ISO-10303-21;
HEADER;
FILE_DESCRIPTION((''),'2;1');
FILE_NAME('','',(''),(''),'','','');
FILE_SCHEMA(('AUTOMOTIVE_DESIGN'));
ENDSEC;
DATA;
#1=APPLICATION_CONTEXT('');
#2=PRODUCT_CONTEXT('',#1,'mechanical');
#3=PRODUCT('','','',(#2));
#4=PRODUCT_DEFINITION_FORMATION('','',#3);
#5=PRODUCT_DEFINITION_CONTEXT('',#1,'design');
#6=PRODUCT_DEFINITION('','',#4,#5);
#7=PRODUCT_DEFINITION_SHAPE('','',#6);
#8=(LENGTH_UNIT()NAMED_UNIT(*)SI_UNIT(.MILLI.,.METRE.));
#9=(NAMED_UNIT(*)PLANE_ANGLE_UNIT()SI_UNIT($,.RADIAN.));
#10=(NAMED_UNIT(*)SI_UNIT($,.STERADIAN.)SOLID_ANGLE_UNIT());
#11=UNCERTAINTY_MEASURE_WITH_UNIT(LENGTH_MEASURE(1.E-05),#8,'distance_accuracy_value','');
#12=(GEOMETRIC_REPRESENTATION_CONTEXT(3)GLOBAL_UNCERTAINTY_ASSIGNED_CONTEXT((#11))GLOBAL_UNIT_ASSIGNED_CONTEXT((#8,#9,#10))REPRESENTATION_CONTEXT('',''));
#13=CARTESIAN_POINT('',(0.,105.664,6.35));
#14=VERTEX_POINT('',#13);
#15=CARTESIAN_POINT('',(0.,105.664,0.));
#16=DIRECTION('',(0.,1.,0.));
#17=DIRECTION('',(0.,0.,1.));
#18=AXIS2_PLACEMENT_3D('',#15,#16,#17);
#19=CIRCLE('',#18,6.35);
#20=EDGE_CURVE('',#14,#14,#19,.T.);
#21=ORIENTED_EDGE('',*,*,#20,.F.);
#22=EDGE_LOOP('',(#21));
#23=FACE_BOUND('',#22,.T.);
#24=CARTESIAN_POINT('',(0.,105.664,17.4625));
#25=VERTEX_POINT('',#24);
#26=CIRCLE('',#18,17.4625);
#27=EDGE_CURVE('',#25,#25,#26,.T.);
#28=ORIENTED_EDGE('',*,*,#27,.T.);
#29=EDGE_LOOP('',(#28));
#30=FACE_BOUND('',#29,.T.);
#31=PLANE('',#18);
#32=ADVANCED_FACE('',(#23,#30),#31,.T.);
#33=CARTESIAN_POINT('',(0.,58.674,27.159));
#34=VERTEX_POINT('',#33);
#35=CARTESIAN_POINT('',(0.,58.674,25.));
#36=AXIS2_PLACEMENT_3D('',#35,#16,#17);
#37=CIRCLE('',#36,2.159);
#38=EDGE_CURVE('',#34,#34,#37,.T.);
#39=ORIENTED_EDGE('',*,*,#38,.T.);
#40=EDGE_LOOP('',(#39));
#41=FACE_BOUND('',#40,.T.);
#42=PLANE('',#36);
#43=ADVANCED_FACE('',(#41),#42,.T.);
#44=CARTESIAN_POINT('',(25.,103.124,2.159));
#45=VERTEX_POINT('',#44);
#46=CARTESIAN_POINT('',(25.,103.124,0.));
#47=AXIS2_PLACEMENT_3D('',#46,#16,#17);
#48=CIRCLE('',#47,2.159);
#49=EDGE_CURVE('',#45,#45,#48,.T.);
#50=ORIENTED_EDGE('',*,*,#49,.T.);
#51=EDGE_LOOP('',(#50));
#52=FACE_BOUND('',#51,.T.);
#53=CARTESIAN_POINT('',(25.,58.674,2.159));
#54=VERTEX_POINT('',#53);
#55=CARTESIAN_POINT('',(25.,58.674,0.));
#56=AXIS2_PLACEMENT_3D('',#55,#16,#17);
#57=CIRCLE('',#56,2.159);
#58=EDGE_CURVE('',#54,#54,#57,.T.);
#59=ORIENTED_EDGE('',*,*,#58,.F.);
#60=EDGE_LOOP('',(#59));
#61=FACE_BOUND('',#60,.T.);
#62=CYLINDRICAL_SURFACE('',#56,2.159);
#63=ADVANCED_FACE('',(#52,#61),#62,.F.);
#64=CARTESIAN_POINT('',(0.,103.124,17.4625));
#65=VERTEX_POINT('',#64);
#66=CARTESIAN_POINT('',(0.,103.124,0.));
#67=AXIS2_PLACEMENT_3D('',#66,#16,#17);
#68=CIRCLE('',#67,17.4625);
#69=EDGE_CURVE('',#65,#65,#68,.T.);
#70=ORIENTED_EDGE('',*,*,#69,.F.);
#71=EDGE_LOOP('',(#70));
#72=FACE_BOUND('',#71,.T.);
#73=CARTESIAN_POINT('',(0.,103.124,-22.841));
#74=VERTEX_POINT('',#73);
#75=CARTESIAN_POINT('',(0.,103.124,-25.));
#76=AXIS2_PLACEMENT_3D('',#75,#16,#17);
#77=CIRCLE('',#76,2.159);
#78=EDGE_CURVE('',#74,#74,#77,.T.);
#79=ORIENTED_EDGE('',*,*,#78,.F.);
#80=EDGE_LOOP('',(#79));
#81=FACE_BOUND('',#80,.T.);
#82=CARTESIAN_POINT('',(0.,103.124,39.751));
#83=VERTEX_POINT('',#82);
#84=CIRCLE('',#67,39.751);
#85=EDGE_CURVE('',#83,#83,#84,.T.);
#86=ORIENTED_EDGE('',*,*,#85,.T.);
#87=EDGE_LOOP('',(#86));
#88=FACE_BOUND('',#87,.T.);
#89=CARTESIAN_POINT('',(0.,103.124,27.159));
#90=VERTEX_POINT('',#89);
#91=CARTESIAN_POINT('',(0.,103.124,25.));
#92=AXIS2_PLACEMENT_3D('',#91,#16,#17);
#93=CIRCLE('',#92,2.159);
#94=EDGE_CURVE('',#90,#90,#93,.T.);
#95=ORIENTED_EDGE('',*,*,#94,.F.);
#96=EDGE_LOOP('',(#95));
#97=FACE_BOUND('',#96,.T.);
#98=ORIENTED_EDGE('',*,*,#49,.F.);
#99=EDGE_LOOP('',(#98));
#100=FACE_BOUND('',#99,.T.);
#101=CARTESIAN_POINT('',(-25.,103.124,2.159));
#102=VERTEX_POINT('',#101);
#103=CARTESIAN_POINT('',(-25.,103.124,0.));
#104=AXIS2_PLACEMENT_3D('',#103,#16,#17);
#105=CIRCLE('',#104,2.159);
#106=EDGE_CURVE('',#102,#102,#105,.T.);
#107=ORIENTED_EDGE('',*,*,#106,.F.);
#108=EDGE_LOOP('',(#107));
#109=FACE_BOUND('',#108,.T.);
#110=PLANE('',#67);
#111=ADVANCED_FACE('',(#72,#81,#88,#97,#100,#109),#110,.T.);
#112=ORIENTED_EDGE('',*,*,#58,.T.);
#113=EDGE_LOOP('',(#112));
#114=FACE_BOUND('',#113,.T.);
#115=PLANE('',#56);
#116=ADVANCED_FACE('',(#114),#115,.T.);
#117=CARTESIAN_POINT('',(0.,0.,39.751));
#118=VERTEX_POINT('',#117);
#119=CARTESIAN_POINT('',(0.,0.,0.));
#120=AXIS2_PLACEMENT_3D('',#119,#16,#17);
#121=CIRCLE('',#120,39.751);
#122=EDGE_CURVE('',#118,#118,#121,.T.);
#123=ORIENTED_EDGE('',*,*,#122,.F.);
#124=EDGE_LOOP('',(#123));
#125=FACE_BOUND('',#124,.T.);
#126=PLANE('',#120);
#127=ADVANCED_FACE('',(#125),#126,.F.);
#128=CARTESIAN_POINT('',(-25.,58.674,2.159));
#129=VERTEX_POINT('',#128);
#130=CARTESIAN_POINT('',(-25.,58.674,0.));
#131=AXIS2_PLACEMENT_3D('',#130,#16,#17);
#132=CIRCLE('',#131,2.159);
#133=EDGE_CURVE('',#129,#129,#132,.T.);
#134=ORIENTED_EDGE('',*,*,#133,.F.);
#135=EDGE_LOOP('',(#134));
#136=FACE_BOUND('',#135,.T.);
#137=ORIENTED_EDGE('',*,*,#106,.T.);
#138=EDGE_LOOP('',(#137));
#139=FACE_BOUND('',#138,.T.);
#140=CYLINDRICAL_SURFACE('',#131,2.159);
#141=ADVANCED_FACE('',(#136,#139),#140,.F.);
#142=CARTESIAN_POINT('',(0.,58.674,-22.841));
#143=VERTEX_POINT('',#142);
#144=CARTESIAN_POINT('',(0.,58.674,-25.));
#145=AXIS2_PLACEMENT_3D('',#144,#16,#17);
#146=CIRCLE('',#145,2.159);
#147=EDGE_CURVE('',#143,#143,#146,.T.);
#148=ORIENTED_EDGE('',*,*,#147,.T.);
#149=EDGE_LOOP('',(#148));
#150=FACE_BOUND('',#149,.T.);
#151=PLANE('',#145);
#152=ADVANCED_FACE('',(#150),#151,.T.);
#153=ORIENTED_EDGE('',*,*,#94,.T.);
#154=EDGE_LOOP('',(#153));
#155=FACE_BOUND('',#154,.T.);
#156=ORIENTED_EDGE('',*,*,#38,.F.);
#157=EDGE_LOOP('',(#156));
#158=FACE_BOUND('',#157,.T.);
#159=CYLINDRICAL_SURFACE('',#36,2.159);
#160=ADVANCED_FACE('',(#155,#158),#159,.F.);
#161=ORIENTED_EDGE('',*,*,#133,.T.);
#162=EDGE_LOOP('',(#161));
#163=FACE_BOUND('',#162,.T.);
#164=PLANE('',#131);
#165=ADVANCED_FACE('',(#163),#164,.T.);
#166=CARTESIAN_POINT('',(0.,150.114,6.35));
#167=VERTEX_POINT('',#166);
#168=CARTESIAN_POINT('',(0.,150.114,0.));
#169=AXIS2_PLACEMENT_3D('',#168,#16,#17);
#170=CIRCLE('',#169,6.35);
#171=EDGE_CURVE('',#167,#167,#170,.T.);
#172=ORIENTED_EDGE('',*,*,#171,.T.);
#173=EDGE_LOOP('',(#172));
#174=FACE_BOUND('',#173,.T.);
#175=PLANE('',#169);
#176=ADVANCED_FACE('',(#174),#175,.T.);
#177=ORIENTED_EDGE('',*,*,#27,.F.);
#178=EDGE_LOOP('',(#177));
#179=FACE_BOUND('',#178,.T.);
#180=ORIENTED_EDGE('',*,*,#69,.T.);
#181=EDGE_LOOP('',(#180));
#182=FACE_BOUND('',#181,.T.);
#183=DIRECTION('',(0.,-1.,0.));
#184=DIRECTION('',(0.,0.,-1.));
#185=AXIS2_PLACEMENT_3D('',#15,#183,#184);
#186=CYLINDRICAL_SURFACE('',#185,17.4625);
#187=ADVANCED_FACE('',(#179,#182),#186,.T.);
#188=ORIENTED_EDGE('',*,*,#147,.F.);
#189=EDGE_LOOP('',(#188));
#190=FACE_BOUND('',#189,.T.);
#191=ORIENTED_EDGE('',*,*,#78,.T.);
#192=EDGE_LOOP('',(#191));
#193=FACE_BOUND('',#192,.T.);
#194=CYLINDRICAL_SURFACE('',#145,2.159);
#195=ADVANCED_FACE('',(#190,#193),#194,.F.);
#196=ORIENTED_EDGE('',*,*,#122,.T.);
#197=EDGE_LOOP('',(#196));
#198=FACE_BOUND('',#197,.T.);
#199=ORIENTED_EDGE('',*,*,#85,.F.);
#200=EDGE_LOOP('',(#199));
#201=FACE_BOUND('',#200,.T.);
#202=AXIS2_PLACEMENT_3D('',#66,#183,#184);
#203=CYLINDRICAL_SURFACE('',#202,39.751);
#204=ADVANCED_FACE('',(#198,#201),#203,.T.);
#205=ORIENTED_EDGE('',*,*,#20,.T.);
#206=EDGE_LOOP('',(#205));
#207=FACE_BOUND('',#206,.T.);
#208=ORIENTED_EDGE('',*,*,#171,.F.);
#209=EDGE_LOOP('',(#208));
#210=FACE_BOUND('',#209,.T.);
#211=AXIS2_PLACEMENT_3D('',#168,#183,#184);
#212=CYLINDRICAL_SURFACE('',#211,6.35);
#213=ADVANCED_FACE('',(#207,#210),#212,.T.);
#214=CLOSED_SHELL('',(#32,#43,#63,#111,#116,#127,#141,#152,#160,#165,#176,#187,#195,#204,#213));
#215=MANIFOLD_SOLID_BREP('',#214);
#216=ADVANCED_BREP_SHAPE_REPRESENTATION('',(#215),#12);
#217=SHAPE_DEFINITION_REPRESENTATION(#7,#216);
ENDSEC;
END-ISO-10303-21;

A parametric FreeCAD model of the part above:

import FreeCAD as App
import Part
import Sketcher

V = App.Vector
Q = App.Units.Quantity

doc = App.newDocument("Part")
body = doc.addObject("PartDesign::Body", "Body")

# Sketch on XZ plane
sketch1 = body.newObject("Sketcher::SketchObject", "Sketch")
sketch1.AttachmentSupport = (doc.getObject("XZ_Plane"), [""])
sketch1.MapMode = "FlatFace"
sketch1.addGeometry(Part.Circle(V(0, 0, 0), V(0, 0, 1), 40), False)
sketch1.addConstraint([
    Sketcher.Constraint("Coincident", 0, 3, -1, 1),
    Sketcher.Constraint("Diameter", 0, Q("3.13 in")),
])
pad1 = body.newObject("PartDesign::Pad", "Pad")
pad1.Profile = sketch1
pad1.Length = Q("4.06 in")
pad1.Reversed = True

# Sketch on XZ plane
sketch2 = body.newObject("Sketcher::SketchObject", "Sketch001")
sketch2.AttachmentSupport = (doc.getObject("XZ_Plane"), [""])
sketch2.MapMode = "FlatFace"
sketch2.AttachmentOffset = App.Placement(V(0, 0, -4.06 * 25.4), App.Rotation())
sketch2.addGeometry(Part.Circle(V(0, 0, 0), V(0, 0, 1), 17), False)
sketch2.addConstraint([
    Sketcher.Constraint("Coincident", 0, 3, -1, 1),
    Sketcher.Constraint("Diameter", 0, Q("1.375 in")),
])
pad2 = body.newObject("PartDesign::Pad", "Pad001")
pad2.Profile = sketch2
pad2.Length = Q("0.1 in")
pad2.Reversed = True

# Sketch on XZ plane
sketch3 = body.newObject("Sketcher::SketchObject", "Sketch002")
sketch3.AttachmentSupport = (doc.getObject("XZ_Plane"), [""])
sketch3.MapMode = "FlatFace"
sketch3.AttachmentOffset = App.Placement(V(0, 0, -4.16 * 25.4), App.Rotation())
sketch3.addGeometry(Part.Circle(V(0, 0, 0), V(0, 0, 1), 6), False)
sketch3.addConstraint([
    Sketcher.Constraint("Coincident", 0, 3, -1, 1),
    Sketcher.Constraint("Diameter", 0, Q("0.5 in")),
])
pad3 = body.newObject("PartDesign::Pad", "Pad002")
pad3.Profile = sketch3
pad3.Length = Q("1.75 in")
pad3.Reversed = True

# Sketch on XZ plane
sketch4 = body.newObject("Sketcher::SketchObject", "Sketch003")
sketch4.AttachmentSupport = (doc.getObject("XZ_Plane"), [""])
sketch4.MapMode = "FlatFace"
sketch4.AttachmentOffset = App.Placement(V(0, 0, -4.06 * 25.4), App.Rotation())
sketch4.addGeometry([
    Part.Circle(V(0, -25, 0), V(0, 0, 1), 2.2),
    Part.Circle(V(25, 0, 0), V(0, 0, 1), 2.2),
    Part.Circle(V(0, 25, 0), V(0, 0, 1), 2.2),
    Part.Circle(V(-25, 0, 0), V(0, 0, 1), 2.2),
], False)
sketch4.addConstraint([
    Sketcher.Constraint("Equal", 0, 1),
    Sketcher.Constraint("Equal", 1, 2),
    Sketcher.Constraint("Equal", 2, 3),
    Sketcher.Constraint("Symmetric", 0, 3, 2, 3, -1, 1),
    Sketcher.Constraint("Symmetric", 1, 3, 3, 3, -1, 1),
    Sketcher.Constraint("PointOnObject", 0, 3, -2),
    Sketcher.Constraint("PointOnObject", 1, 3, -1),
    Sketcher.Constraint("Diameter", 0, Q("0.17 in")),
    Sketcher.Constraint("DistanceY", 0, 3, -1, 1, Q("25 mm")),
    Sketcher.Constraint("DistanceX", -1, 1, 1, 3, Q("25 mm")),
])
pocket1 = body.newObject("PartDesign::Pocket", "Pocket")
pocket1.Profile = sketch4
pocket1.Length = Q("1.75 in")
pocket1.Reversed = True

doc.recompute()
